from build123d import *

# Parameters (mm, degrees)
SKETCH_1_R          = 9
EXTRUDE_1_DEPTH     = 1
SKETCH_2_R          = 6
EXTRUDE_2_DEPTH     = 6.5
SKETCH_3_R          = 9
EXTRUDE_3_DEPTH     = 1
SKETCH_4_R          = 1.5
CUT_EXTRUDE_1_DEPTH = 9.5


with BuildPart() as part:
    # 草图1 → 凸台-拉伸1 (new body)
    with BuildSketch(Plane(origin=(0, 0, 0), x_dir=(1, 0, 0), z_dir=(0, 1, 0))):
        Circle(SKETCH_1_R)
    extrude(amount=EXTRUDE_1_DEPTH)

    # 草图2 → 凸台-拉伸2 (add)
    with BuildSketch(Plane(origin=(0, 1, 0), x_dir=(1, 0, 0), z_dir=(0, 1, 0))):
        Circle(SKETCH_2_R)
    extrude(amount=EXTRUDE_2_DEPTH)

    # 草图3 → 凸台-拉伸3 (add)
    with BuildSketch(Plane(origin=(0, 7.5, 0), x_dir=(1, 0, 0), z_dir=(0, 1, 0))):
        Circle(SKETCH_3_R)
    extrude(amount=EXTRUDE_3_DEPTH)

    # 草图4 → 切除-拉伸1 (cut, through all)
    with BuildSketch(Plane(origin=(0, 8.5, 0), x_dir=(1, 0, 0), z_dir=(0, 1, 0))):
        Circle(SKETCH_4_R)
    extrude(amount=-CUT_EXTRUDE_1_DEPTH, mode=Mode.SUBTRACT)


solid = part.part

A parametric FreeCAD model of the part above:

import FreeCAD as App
import Part
import Sketcher

V = App.Vector

doc = App.newDocument("Part")
params = doc.addObject("Spreadsheet::Sheet", "Params")
for row, (alias, value) in enumerate([
    ("sketch1_diameter", "18 mm"),
    ("pad1_length", "1 mm"),
    ("sketch2_diameter", "12 mm"),
    ("pad2_length", "6.5 mm"),
    ("sketch3_diameter", "18 mm"),
    ("pad3_length", "1 mm"),
    ("sketch4_diameter", "3 mm"),
], start=1):
    params.set(f"A{row}", alias)
    params.set(f"B{row}", "=" + value)
    params.setAlias(f"B{row}", alias)

body = doc.addObject("PartDesign::Body", "Body")

# Sketch on XZ plane
sketch1 = body.newObject("Sketcher::SketchObject", "Sketch")
sketch1.AttachmentSupport = (doc.getObject("XZ_Plane"), [""])
sketch1.MapMode = "FlatFace"
sketch1.addGeometry(Part.Circle(V(0, 0, 0), V(0, 0, 1), 9), False)
sketch1.addConstraint([
    Sketcher.Constraint("Coincident", 0, 3, -1, 1),
    Sketcher.Constraint("Diameter", 0, 18.0),
])
sketch1.setExpression("Constraints[1]", "Params.sketch1_diameter")
pad1 = body.newObject("PartDesign::Pad", "Pad")
pad1.Profile = sketch1
pad1.setExpression("Length", "Params.pad1_length")
pad1.Reversed = True

# Sketch on XZ plane
sketch2 = body.newObject("Sketcher::SketchObject", "Sketch001")
sketch2.AttachmentSupport = (doc.getObject("XZ_Plane"), [""])
sketch2.MapMode = "FlatFace"
sketch2.AttachmentOffset = App.Placement(V(0, 0, -1), App.Rotation())
sketch2.addGeometry(Part.Circle(V(0, 0, 0), V(0, 0, 1), 6), False)
sketch2.addConstraint([
    Sketcher.Constraint("Coincident", 0, 3, -1, 1),
    Sketcher.Constraint("Diameter", 0, 12.0),
])
sketch2.setExpression("Constraints[1]", "Params.sketch2_diameter")
pad2 = body.newObject("PartDesign::Pad", "Pad001")
pad2.Profile = sketch2
pad2.setExpression("Length", "Params.pad2_length")
pad2.Reversed = True

# Sketch on XZ plane
sketch3 = body.newObject("Sketcher::SketchObject", "Sketch002")
sketch3.AttachmentSupport = (doc.getObject("XZ_Plane"), [""])
sketch3.MapMode = "FlatFace"
sketch3.AttachmentOffset = App.Placement(V(0, 0, -7.5), App.Rotation())
sketch3.addGeometry(Part.Circle(V(0, 0, 0), V(0, 0, 1), 9), False)
sketch3.addConstraint([
    Sketcher.Constraint("Coincident", 0, 3, -1, 1),
    Sketcher.Constraint("Diameter", 0, 18.0),
])
sketch3.setExpression("Constraints[1]", "Params.sketch3_diameter")
pad3 = body.newObject("PartDesign::Pad", "Pad002")
pad3.Profile = sketch3
pad3.setExpression("Length", "Params.pad3_length")
pad3.Reversed = True

# Sketch on XZ plane
sketch4 = body.newObject("Sketcher::SketchObject", "Sketch003")
sketch4.AttachmentSupport = (doc.getObject("XZ_Plane"), [""])
sketch4.MapMode = "FlatFace"
sketch4.AttachmentOffset = App.Placement(V(0, 0, -8.5), App.Rotation())
sketch4.addGeometry(Part.Circle(V(0, 0, 0), V(0, 0, 1), 1.5), False)
sketch4.addConstraint([
    Sketcher.Constraint("Coincident", 0, 3, -1, 1),
    Sketcher.Constraint("Diameter", 0, 3.0),
])
sketch4.setExpression("Constraints[1]", "Params.sketch4_diameter")
pocket1 = body.newObject("PartDesign::Pocket", "Pocket")
pocket1.Profile = sketch4
pocket1.Type = "ThroughAll"
pocket1.Reversed = True

doc.recompute()
